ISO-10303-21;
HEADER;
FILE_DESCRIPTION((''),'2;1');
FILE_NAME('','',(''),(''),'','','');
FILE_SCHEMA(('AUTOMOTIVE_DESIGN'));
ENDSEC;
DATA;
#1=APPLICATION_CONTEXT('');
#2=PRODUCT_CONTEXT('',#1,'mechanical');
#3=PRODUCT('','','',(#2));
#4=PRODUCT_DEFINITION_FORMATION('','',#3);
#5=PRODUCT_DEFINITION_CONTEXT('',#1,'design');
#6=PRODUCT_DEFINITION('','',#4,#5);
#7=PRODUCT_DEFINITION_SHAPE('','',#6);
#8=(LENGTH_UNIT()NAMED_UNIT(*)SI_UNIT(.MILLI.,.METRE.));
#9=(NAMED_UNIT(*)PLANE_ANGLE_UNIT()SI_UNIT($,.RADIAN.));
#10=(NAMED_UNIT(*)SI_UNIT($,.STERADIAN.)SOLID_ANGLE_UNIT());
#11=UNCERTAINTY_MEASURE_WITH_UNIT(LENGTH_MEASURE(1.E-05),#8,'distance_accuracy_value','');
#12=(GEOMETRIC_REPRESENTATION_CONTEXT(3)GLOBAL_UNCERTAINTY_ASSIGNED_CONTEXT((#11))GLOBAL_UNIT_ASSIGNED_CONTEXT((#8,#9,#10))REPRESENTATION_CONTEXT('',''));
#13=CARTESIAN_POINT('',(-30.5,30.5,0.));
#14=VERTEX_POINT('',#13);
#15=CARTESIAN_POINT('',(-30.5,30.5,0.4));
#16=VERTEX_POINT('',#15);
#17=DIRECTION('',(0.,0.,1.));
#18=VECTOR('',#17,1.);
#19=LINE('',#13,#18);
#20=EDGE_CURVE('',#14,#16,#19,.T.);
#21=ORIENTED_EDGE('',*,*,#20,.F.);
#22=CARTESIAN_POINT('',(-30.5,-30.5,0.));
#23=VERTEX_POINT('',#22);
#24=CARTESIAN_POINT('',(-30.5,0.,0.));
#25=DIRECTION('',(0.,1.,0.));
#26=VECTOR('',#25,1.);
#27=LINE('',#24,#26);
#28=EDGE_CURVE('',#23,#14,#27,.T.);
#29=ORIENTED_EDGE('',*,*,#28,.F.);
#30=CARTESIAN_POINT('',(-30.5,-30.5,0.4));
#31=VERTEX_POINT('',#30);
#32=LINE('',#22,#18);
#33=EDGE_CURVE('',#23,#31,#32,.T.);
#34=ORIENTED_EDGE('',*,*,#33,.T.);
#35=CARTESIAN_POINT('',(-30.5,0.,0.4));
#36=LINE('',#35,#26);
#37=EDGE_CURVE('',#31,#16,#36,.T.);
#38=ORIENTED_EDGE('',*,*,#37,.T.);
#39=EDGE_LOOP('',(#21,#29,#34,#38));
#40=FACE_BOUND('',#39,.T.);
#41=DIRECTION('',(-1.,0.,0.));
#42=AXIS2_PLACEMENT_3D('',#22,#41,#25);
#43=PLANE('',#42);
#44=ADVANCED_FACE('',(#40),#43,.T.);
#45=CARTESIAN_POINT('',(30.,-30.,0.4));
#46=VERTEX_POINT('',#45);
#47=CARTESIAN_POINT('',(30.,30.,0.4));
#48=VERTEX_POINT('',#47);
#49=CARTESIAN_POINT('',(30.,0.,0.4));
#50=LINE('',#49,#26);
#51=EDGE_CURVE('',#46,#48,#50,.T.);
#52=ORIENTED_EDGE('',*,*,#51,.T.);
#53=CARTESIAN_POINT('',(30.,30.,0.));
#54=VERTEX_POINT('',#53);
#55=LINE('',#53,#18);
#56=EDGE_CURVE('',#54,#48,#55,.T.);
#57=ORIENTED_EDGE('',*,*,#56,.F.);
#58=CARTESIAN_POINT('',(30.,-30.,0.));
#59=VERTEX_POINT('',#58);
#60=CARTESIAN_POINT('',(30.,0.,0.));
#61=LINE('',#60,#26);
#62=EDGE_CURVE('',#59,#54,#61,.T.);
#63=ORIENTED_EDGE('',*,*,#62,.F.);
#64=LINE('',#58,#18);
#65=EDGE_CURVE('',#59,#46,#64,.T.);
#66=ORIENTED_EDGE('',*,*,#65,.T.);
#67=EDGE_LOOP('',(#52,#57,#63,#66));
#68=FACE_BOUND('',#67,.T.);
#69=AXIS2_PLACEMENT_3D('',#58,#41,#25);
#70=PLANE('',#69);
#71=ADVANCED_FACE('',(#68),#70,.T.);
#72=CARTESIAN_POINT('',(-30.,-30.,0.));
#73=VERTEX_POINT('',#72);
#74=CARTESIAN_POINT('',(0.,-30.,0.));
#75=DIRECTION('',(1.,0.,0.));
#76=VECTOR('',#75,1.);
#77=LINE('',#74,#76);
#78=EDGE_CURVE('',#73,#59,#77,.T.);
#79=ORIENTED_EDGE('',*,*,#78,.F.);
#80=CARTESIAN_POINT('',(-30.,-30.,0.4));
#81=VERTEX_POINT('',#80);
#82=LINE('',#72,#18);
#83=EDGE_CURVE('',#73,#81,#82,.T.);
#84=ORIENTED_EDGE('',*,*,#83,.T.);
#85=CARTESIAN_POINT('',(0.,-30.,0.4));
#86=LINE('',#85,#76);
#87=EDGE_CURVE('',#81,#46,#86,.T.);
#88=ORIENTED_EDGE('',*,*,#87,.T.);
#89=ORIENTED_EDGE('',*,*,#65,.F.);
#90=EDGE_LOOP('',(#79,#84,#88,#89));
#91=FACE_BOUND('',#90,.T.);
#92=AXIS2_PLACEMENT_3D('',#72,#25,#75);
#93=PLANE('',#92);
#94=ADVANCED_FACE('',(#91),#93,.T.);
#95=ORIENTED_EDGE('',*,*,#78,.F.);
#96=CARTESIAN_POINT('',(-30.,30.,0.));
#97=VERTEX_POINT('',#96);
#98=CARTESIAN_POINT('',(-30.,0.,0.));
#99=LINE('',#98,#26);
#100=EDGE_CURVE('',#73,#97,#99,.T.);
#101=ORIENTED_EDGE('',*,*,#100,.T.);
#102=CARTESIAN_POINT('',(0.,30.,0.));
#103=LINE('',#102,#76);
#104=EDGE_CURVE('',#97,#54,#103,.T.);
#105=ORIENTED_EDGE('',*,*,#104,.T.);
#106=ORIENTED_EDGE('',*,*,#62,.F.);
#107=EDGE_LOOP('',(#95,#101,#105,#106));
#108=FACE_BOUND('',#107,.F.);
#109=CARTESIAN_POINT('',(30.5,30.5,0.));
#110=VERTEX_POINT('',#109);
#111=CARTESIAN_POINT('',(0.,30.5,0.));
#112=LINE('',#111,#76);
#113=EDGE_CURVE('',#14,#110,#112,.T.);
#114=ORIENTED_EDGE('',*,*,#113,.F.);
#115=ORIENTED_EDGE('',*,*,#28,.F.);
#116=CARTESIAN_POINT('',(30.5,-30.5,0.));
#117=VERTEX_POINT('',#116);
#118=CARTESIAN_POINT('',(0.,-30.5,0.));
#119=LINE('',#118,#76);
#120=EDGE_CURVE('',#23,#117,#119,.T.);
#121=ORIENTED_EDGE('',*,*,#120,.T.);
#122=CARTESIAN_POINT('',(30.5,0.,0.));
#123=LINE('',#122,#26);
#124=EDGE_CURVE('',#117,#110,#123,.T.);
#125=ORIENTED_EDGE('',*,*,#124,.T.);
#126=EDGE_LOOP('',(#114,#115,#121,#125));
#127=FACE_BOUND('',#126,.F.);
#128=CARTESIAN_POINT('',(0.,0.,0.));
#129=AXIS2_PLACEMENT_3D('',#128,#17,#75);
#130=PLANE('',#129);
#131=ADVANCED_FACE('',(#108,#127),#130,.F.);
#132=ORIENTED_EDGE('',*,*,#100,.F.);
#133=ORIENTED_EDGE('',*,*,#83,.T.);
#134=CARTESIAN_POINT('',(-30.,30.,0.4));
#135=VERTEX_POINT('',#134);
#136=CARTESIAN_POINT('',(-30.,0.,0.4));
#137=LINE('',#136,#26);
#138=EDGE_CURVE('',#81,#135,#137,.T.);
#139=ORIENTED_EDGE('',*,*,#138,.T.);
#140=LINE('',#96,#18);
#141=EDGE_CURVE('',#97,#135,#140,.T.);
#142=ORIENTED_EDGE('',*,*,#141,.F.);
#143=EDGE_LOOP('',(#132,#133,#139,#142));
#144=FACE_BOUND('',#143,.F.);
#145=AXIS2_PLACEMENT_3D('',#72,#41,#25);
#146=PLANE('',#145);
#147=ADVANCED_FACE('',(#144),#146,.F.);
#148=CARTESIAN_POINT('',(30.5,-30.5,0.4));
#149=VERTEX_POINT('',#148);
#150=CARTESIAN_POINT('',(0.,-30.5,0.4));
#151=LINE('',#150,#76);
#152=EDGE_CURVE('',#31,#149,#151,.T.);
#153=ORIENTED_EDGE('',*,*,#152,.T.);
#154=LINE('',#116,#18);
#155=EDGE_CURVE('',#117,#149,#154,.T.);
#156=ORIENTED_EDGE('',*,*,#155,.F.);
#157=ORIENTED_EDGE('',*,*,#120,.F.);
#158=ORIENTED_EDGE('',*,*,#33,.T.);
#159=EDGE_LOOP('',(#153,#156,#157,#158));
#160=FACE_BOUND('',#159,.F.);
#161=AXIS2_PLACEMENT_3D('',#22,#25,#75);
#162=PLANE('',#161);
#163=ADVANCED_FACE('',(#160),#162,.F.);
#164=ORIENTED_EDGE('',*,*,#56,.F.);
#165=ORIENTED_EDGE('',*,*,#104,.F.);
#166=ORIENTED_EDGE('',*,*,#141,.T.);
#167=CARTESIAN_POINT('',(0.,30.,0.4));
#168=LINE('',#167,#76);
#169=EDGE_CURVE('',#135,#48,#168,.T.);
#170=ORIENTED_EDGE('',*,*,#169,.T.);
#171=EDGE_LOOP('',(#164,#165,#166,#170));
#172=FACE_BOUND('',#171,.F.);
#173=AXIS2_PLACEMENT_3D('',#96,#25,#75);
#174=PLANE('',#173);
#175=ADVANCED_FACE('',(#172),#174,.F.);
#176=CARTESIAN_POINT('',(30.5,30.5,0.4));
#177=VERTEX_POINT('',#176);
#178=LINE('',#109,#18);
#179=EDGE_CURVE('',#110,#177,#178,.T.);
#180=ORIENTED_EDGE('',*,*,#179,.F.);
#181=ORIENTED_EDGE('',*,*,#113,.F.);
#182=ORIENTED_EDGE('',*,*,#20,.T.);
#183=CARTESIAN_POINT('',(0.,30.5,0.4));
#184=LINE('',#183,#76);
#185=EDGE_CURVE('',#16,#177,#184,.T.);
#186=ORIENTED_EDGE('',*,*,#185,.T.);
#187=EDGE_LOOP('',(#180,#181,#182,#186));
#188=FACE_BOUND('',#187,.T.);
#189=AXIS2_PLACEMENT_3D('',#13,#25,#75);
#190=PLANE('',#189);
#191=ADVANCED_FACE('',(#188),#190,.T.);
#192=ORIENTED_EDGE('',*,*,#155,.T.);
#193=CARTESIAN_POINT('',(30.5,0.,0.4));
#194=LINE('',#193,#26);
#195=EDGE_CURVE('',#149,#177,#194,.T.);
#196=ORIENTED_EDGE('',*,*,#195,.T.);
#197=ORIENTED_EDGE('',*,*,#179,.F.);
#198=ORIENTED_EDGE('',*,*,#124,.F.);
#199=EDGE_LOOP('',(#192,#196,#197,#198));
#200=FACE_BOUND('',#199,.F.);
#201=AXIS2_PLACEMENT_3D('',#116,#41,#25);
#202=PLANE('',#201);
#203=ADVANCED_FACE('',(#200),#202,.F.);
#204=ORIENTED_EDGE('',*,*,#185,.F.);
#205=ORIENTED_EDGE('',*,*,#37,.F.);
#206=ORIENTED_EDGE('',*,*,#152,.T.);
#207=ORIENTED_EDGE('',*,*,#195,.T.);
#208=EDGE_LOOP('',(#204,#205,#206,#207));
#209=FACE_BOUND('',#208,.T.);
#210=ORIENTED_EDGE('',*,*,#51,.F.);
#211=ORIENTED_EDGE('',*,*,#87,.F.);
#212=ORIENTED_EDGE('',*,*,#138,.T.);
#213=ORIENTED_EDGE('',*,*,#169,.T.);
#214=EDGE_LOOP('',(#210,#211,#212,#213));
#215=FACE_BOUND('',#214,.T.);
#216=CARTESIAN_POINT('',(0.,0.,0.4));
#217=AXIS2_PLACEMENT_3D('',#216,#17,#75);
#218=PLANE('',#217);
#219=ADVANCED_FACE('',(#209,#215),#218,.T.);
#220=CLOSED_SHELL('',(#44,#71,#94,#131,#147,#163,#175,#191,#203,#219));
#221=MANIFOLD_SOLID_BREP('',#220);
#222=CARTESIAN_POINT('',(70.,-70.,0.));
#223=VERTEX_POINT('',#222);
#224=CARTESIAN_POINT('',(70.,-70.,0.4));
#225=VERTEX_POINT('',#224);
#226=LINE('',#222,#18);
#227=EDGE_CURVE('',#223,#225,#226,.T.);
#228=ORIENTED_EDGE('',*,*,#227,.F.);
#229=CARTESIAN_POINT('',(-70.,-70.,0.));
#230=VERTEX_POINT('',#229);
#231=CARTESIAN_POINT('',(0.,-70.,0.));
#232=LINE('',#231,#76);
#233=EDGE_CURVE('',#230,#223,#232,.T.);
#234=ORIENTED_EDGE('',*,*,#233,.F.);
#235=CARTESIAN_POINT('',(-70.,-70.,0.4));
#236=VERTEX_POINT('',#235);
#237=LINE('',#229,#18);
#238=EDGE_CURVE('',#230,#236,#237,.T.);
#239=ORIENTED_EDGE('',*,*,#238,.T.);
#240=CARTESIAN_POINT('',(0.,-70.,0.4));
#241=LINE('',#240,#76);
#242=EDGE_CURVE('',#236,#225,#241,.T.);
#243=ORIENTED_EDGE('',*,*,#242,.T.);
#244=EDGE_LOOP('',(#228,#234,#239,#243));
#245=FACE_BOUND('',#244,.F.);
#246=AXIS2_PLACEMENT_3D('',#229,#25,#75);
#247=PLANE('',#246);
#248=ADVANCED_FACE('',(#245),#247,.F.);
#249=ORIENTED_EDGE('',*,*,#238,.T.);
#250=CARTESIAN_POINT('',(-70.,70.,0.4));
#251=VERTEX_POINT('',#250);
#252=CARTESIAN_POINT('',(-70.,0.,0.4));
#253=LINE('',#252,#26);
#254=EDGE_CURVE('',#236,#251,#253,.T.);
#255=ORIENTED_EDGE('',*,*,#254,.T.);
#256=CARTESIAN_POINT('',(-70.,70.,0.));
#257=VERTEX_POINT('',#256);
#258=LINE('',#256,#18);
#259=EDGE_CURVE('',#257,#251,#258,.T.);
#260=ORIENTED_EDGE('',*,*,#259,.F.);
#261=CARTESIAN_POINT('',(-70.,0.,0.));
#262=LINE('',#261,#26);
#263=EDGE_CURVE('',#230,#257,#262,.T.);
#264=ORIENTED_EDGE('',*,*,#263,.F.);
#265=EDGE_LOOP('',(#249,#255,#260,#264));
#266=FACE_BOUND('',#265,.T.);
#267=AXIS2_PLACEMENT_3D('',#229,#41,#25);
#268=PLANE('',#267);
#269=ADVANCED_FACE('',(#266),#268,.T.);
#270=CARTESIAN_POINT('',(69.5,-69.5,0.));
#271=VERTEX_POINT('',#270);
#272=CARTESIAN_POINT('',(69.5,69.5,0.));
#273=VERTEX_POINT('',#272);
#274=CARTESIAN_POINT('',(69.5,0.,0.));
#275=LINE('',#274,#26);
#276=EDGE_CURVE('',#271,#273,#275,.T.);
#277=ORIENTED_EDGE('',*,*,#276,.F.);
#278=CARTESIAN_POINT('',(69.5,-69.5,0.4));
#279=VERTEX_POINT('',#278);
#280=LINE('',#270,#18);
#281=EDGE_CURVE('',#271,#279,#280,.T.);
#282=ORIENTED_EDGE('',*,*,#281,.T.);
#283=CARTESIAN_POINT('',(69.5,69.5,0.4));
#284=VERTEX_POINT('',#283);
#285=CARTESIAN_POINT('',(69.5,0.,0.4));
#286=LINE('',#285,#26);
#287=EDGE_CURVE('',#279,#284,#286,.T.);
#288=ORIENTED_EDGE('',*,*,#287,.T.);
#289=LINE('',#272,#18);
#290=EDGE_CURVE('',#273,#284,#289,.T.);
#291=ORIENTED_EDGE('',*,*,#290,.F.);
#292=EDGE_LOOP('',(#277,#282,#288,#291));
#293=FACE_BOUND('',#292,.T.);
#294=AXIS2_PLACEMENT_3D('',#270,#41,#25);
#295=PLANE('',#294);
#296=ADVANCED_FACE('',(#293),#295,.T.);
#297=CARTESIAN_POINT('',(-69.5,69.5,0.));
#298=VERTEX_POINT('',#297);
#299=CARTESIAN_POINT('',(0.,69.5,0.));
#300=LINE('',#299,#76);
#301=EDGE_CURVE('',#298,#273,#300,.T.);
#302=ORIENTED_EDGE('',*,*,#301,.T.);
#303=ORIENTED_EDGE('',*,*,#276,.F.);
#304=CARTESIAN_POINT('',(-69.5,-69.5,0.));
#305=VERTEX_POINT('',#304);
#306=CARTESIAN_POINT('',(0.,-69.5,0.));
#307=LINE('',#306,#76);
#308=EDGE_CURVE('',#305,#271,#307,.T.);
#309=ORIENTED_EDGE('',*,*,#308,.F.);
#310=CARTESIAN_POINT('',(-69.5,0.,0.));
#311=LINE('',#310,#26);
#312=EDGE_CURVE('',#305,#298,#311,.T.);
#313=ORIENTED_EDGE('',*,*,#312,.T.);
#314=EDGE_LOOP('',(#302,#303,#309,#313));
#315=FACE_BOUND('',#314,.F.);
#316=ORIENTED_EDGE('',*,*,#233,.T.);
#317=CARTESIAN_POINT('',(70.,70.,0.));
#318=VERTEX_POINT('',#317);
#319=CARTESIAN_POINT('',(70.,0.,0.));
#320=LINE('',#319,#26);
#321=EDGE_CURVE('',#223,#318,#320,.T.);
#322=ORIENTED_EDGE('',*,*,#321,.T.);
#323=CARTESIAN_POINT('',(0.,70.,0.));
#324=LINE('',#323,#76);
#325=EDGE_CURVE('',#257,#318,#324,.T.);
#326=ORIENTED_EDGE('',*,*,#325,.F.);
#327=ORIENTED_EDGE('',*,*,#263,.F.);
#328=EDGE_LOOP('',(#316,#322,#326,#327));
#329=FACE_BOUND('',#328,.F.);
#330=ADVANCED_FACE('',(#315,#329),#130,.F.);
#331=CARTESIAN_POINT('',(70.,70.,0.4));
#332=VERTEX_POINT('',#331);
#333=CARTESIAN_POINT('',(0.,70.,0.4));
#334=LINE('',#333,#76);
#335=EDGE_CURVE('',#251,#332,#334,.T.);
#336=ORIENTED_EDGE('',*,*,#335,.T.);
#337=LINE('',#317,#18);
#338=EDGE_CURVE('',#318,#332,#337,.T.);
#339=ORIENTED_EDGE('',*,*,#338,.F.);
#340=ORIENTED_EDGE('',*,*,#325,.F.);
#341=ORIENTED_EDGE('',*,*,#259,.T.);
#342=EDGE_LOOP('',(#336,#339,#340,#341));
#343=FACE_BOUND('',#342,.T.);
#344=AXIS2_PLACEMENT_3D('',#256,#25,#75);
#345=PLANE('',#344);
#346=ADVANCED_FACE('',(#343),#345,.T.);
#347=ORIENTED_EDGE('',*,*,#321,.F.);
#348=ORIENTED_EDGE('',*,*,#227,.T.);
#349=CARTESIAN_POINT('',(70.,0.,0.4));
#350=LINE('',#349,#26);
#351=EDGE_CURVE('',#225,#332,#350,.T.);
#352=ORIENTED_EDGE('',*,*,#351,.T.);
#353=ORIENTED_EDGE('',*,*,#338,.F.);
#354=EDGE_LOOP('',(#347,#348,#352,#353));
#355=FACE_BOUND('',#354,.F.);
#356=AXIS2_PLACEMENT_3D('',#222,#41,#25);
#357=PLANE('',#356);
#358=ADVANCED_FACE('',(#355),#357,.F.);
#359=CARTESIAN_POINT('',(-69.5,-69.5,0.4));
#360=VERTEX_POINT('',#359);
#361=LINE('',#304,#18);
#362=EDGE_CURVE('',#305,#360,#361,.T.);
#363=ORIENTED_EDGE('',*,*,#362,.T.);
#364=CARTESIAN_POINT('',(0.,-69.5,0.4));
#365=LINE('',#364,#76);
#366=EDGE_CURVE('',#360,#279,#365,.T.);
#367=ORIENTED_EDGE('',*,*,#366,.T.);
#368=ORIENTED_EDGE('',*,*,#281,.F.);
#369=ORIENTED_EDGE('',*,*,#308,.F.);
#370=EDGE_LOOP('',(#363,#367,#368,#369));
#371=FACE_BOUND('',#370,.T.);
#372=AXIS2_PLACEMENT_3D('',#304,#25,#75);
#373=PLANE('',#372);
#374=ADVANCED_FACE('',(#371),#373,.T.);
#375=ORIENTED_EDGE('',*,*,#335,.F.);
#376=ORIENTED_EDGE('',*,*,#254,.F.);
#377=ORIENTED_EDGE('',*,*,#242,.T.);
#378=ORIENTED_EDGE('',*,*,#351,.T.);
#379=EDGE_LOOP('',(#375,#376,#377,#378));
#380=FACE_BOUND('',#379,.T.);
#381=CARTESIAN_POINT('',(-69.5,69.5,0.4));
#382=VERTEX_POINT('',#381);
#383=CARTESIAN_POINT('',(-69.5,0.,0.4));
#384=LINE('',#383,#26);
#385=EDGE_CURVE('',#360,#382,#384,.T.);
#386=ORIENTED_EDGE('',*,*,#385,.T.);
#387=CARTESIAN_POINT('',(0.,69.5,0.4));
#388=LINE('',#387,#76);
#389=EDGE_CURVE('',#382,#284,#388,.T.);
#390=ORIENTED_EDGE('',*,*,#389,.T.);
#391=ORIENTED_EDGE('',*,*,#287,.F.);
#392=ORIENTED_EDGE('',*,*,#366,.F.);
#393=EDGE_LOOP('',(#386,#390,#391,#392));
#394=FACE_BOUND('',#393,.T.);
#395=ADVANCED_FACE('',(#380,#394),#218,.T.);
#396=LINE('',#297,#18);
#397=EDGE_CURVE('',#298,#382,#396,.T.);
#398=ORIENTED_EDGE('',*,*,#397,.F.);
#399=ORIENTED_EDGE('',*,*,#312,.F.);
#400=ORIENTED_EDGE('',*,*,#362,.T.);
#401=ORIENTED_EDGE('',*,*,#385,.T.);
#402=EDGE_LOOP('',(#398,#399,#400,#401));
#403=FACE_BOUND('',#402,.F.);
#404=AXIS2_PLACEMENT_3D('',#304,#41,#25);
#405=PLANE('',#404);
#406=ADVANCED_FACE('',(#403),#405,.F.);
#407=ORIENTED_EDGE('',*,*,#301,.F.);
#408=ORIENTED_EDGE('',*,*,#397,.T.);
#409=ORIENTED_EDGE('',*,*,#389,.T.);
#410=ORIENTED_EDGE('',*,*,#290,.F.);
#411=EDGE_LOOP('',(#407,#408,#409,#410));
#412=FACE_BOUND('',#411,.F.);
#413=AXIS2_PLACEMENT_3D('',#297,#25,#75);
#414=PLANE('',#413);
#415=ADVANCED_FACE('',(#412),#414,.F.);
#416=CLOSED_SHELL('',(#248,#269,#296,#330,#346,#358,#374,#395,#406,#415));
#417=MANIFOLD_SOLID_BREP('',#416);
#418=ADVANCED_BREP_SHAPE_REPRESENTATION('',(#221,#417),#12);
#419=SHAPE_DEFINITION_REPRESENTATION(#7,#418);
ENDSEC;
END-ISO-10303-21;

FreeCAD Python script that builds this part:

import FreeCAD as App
import Part
import Sketcher
Q = App.Units.Quantity


def add_polygon(sketch, points):
    """Adds a closed chain of lines whose ends are joined by coincident constraints."""
    first, n = sketch.GeometryCount, len(points)
    for a, b in zip(points, points[1:] + points[:1]):
        sketch.addGeometry(Part.LineSegment(App.Vector(*a, 0), App.Vector(*b, 0)), False)
    for i in range(n):
        sketch.addConstraint(Sketcher.Constraint("Coincident", first + i, 2, first + (i + 1) % n, 1))

doc = App.newDocument("Part")
params = doc.addObject("Spreadsheet::Sheet", "Params")
for row, (alias, value) in enumerate([
    ("sketch1_width", "140 mm"),
    ("sketch1_width2", "139 mm"),
    ("sketch1_width3", "61 mm"),
    ("sketch1_width4", "60 mm"),
    ("pad1_length", "0.4 mm"),
], start=1):
    params.set(f"A{row}", alias)
    params.set(f"B{row}", "=" + value)
    params.setAlias(f"B{row}", alias)

body = doc.addObject("PartDesign::Body", "Body")
body.AllowCompound = True

# Sketch on XY plane
sketch1 = body.newObject("Sketcher::SketchObject", "Sketch")
sketch1.AttachmentSupport = (doc.getObject("XY_Plane"), [""])
sketch1.MapMode = "FlatFace"
add_polygon(sketch1, [(-70, 70), (-70, -70), (70, -70), (70, 70)])  # lines 0-3
add_polygon(sketch1, [(70, -70), (-70, -70), (-70, 70), (70, 70)])  # lines 4-7
add_polygon(sketch1, [(-30, 30), (-30, -30), (30, -30), (30, 30)])  # lines 8-11
add_polygon(sketch1, [(30, -30), (-30, -30), (-30, 30), (30, 30)])  # lines 12-15
sketch1.addConstraint(Sketcher.Constraint("Vertical", 0))
sketch1.addConstraint(Sketcher.Constraint("Horizontal", 1))
sketch1.addConstraint(Sketcher.Constraint("Vertical", 2))
sketch1.addConstraint(Sketcher.Constraint("Horizontal", 3))
sketch1.addConstraint(Sketcher.Constraint("Horizontal", 4))
sketch1.addConstraint(Sketcher.Constraint("Vertical", 5))
sketch1.addConstraint(Sketcher.Constraint("Horizontal", 6))
sketch1.addConstraint(Sketcher.Constraint("Vertical", 7))
sketch1.addConstraint(Sketcher.Constraint("Vertical", 8))
sketch1.addConstraint(Sketcher.Constraint("Horizontal", 9))
sketch1.addConstraint(Sketcher.Constraint("Vertical", 10))
sketch1.addConstraint(Sketcher.Constraint("Horizontal", 11))
sketch1.addConstraint(Sketcher.Constraint("Horizontal", 12))
sketch1.addConstraint(Sketcher.Constraint("Vertical", 13))
sketch1.addConstraint(Sketcher.Constraint("Horizontal", 14))
sketch1.addConstraint(Sketcher.Constraint("Vertical", 15))
sketch1.addConstraint(Sketcher.Constraint("Symmetric", 0, 2, 2, 2, -1, 1))
sketch1.addConstraint(Sketcher.Constraint("Symmetric", 4, 2, 6, 2, -1, 1))
sketch1.addConstraint(Sketcher.Constraint("Symmetric", 8, 2, 10, 2, -1, 1))
sketch1.addConstraint(Sketcher.Constraint("Symmetric", 12, 2, 14, 2, -1, 1))
sketch1.addConstraint(Sketcher.Constraint("Equal", 3, 0))
sketch1.addConstraint(Sketcher.Constraint("Equal", 6, 5))
sketch1.addConstraint(Sketcher.Constraint("Equal", 11, 8))
sketch1.addConstraint(Sketcher.Constraint("Equal", 14, 13))
sketch1.addConstraint(Sketcher.Constraint("DistanceX", 1, 1, 1, 2, Q("140 mm")))
sketch1.addConstraint(Sketcher.Constraint("DistanceX", 4, 2, 4, 1, Q("139 mm")))
sketch1.addConstraint(Sketcher.Constraint("DistanceX", 9, 1, 9, 2, Q("61 mm")))
sketch1.addConstraint(Sketcher.Constraint("DistanceX", 12, 2, 12, 1, Q("60 mm")))
sketch1.setExpression("Constraints[40]", "Params.sketch1_width")
sketch1.setExpression("Constraints[41]", "Params.sketch1_width2")
sketch1.setExpression("Constraints[42]", "Params.sketch1_width3")
sketch1.setExpression("Constraints[43]", "Params.sketch1_width4")
pad1 = body.newObject("PartDesign::Pad", "Pad")
pad1.Profile = sketch1
pad1.setExpression("Length", "Params.pad1_length")

doc.recompute()
